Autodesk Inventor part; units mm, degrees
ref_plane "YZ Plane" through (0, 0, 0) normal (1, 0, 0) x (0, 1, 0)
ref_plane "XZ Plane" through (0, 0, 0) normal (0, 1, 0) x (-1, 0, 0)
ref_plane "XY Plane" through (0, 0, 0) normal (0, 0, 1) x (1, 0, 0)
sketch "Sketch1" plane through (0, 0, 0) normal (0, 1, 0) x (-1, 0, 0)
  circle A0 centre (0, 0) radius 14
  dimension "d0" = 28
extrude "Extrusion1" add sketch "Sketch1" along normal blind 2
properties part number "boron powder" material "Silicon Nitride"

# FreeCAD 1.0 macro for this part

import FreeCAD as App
import Part
import Sketcher
from FreeCAD import Vector
Q = App.Units.Quantity

doc = App.newDocument("Part")
body = doc.addObject("PartDesign::Body", "Body")

# Sketch on XZ plane
sketch1 = body.newObject("Sketcher::SketchObject", "Sketch")
sketch1.AttachmentSupport = (doc.getObject("XZ_Plane"), [""])
sketch1.MapMode = "FlatFace"
sketch1.addGeometry(Part.Circle(Vector(0, 0, 0), Vector(0, 0, 1), 14), False)
sketch1.addConstraint(Sketcher.Constraint("Coincident", 0, 3, -1, 1))
sketch1.addConstraint(Sketcher.Constraint("Diameter", 0, Q("28 mm")))
pad1 = body.newObject("PartDesign::Pad", "Pad")
pad1.Profile = sketch1
pad1.Length = 2
pad1.Reversed = True

doc.recompute()
